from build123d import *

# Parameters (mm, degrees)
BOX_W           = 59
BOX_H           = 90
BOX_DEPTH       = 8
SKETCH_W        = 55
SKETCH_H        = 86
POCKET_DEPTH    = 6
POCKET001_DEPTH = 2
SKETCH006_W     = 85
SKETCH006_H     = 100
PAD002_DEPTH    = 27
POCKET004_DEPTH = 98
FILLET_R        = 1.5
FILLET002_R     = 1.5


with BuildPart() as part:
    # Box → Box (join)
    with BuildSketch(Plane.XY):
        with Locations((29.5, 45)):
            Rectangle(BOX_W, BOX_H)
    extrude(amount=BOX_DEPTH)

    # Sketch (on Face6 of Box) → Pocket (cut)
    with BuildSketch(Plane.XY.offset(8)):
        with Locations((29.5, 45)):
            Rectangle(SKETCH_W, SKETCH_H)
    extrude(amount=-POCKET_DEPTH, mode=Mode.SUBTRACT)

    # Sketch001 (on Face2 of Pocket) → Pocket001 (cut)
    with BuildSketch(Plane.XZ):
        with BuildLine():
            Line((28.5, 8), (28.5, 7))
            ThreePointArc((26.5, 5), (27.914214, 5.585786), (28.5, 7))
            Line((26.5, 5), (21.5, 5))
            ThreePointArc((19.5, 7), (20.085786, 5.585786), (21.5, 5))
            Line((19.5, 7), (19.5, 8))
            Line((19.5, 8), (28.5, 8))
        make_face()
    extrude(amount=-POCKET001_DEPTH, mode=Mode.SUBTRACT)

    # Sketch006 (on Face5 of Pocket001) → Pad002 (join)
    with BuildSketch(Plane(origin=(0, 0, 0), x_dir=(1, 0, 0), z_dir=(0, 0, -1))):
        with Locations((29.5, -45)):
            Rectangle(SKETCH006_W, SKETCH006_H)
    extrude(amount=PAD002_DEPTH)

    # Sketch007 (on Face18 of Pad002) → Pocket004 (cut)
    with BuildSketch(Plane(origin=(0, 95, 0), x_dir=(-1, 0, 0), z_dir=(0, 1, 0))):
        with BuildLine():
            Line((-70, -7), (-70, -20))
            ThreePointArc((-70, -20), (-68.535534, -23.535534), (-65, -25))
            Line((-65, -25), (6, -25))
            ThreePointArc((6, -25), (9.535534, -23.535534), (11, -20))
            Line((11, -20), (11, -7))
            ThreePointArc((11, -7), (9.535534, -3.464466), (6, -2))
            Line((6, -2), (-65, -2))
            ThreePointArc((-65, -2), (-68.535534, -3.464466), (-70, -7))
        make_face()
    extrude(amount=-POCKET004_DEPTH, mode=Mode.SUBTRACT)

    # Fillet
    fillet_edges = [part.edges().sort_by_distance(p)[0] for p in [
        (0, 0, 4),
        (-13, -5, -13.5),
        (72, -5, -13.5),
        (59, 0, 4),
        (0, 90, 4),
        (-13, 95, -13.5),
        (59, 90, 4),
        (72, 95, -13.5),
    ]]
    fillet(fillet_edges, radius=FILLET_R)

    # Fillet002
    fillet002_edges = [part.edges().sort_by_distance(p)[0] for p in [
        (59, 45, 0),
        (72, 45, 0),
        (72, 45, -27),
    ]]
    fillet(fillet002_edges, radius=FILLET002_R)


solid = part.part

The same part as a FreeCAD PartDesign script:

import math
import FreeCAD as App
import Part
import Sketcher
Q = App.Units.Quantity


def edges_at(feature, points):
    """Names of the edges that pass closest to the given points."""
    edges = feature.Shape.Edges
    near = lambda p: min(range(len(edges)), key=lambda i: edges[i].distToShape(Part.Vertex(*p))[0])
    return sorted({f"Edge{near(p) + 1}" for p in points})


def add_polygon(sketch, points):
    """Adds a closed chain of lines whose ends are joined by coincident constraints."""
    first, n = sketch.GeometryCount, len(points)
    for a, b in zip(points, points[1:] + points[:1]):
        sketch.addGeometry(Part.LineSegment(App.Vector(*a, 0), App.Vector(*b, 0)), False)
    for i in range(n):
        sketch.addConstraint(Sketcher.Constraint("Coincident", first + i, 2, first + (i + 1) % n, 1))

doc = App.newDocument("Part")
body = doc.addObject("PartDesign::Body", "Body")

sketch1 = body.newObject("Sketcher::SketchObject", "Sketch")
sketch1.AttachmentSupport = (doc.getObject("XY_Plane"), [""])
sketch1.MapMode = "FlatFace"
add_polygon(sketch1, [(0, 90), (0, 0), (59, 0), (59, 90)])
sketch1.addConstraint(Sketcher.Constraint("Vertical", 0))
sketch1.addConstraint(Sketcher.Constraint("Horizontal", 1))
sketch1.addConstraint(Sketcher.Constraint("Vertical", 2))
sketch1.addConstraint(Sketcher.Constraint("Horizontal", 3))
sketch1.addConstraint(Sketcher.Constraint("Coincident", 0, 2, -1, 1))
sketch1.addConstraint(Sketcher.Constraint("DistanceX", 1, 1, 1, 2, Q("59 mm")))
sketch1.addConstraint(Sketcher.Constraint("DistanceY", 0, 2, 0, 1, Q("90 mm")))
pad1 = body.newObject("PartDesign::Pad", "Pad")
pad1.Profile = sketch1
pad1.Length = 8

sketch2 = body.newObject("Sketcher::SketchObject", "Sketch001")
sketch2.AttachmentSupport = (doc.getObject("XY_Plane"), [""])
sketch2.MapMode = "FlatFace"
sketch2.AttachmentOffset = App.Placement(App.Vector(0, 0, 8), App.Rotation())
add_polygon(sketch2, [(2, 88), (2, 2), (57, 2), (57, 88)])
sketch2.addConstraint(Sketcher.Constraint("Vertical", 0))
sketch2.addConstraint(Sketcher.Constraint("Horizontal", 1))
sketch2.addConstraint(Sketcher.Constraint("Vertical", 2))
sketch2.addConstraint(Sketcher.Constraint("Horizontal", 3))
sketch2.addConstraint(Sketcher.Constraint("DistanceX", 1, 1, 1, 2, Q("55 mm")))
sketch2.addConstraint(Sketcher.Constraint("DistanceY", 0, 2, 0, 1, Q("86 mm")))
sketch2.addConstraint(Sketcher.Constraint("DistanceX", -1, 1, 0, 2, Q("2 mm")))
sketch2.addConstraint(Sketcher.Constraint("DistanceY", -1, 1, 0, 2, Q("2 mm")))
pocket1 = body.newObject("PartDesign::Pocket", "Pocket")
pocket1.Profile = sketch2
pocket1.Length = 6

sketch3 = body.newObject("Sketcher::SketchObject", "Sketch002")
sketch3.AttachmentSupport = (doc.getObject("XZ_Plane"), [""])
sketch3.MapMode = "FlatFace"
sketch3.addGeometry(Part.LineSegment(App.Vector(28.5, 7, 0), App.Vector(28.5, 8, 0)), False)
sketch3.addGeometry(Part.LineSegment(App.Vector(28.5, 8, 0), App.Vector(19.5, 8, 0)), False)
sketch3.addGeometry(Part.LineSegment(App.Vector(19.5, 8, 0), App.Vector(19.5, 7, 0)), False)
sketch3.addGeometry(Part.ArcOfCircle(Part.Circle(App.Vector(21.5, 7, 0), App.Vector(0, 0, 1), 2), math.radians(180), math.radians(270)), False)
sketch3.addGeometry(Part.LineSegment(App.Vector(21.5, 5, 0), App.Vector(26.5, 5, 0)), False)
sketch3.addGeometry(Part.ArcOfCircle(Part.Circle(App.Vector(26.5, 7, 0), App.Vector(0, 0, 1), 2), math.radians(-90), math.radians(0)), False)
sketch3.addConstraint(Sketcher.Constraint("Coincident", 0, 2, 1, 1))
sketch3.addConstraint(Sketcher.Constraint("Coincident", 1, 2, 2, 1))
sketch3.addConstraint(Sketcher.Constraint("Tangent", 2, 2, 3, 1))
sketch3.addConstraint(Sketcher.Constraint("Tangent", 3, 2, 4, 1))
sketch3.addConstraint(Sketcher.Constraint("Tangent", 4, 2, 5, 1))
sketch3.addConstraint(Sketcher.Constraint("Tangent", 5, 2, 0, 1))
sketch3.addConstraint(Sketcher.Constraint("Vertical", 0))
sketch3.addConstraint(Sketcher.Constraint("Horizontal", 1))
sketch3.addConstraint(Sketcher.Constraint("Vertical", 2))
sketch3.addConstraint(Sketcher.Constraint("Horizontal", 4))
sketch3.addConstraint(Sketcher.Constraint("Equal", 3, 5))
sketch3.addConstraint(Sketcher.Constraint("Radius", 3, Q("1.999999 mm")))
sketch3.addConstraint(Sketcher.Constraint("DistanceX", 1, 2, 1, 1, Q("9 mm")))
sketch3.addConstraint(Sketcher.Constraint("DistanceY", 0, 1, 0, 2, Q("1 mm")))
sketch3.addConstraint(Sketcher.Constraint("DistanceY", -1, 1, 3, 3, Q("6.999999 mm")))
sketch3.addConstraint(Sketcher.Constraint("DistanceX", -1, 1, 3, 3, Q("21.499999 mm")))
pocket2 = body.newObject("PartDesign::Pocket", "Pocket001")
pocket2.Profile = sketch3
pocket2.Length = 2

sketch4 = body.newObject("Sketcher::SketchObject", "Sketch003")
sketch4.AttachmentSupport = (doc.getObject("XY_Plane"), [""])
sketch4.MapMode = "FlatFace"
add_polygon(sketch4, [(-13, -5), (-13, 95), (72, 95), (72, -5)])
sketch4.addConstraint(Sketcher.Constraint("Vertical", 0))
sketch4.addConstraint(Sketcher.Constraint("Horizontal", 1))
sketch4.addConstraint(Sketcher.Constraint("Vertical", 2))
sketch4.addConstraint(Sketcher.Constraint("Horizontal", 3))
sketch4.addConstraint(Sketcher.Constraint("DistanceX", 1, 1, 1, 2, Q("85 mm")))
sketch4.addConstraint(Sketcher.Constraint("DistanceY", 0, 1, 0, 2, Q("100 mm")))
sketch4.addConstraint(Sketcher.Constraint("DistanceX", 0, 2, -1, 1, Q("13 mm")))
sketch4.addConstraint(Sketcher.Constraint("DistanceY", -1, 1, 0, 2, Q("95 mm")))
pad2 = body.newObject("PartDesign::Pad", "Pad001")
pad2.Profile = sketch4
pad2.Length = 27
pad2.Reversed = True

sketch5 = body.newObject("Sketcher::SketchObject", "Sketch004")
sketch5.AttachmentSupport = (doc.getObject("XZ_Plane"), [""])
sketch5.MapMode = "FlatFace"
sketch5.AttachmentOffset = App.Placement(App.Vector(0, 0, -95), App.Rotation())
sketch5.addGeometry(Part.LineSegment(App.Vector(70, -7, 0), App.Vector(70, -20, 0)), False)
sketch5.addGeometry(Part.ArcOfCircle(Part.Circle(App.Vector(65, -20, 0), App.Vector(0, 0, 1), 5), math.radians(-90), math.radians(0)), False)
sketch5.addGeometry(Part.LineSegment(App.Vector(65, -25, 0), App.Vector(-6, -25, 0)), False)
sketch5.addGeometry(Part.ArcOfCircle(Part.Circle(App.Vector(-6, -20, 0), App.Vector(0, 0, 1), 5), math.radians(180), math.radians(270)), False)
sketch5.addGeometry(Part.LineSegment(App.Vector(-11, -20, 0), App.Vector(-11, -7, 0)), False)
sketch5.addGeometry(Part.ArcOfCircle(Part.Circle(App.Vector(-6, -7, 0), App.Vector(0, 0, 1), 5), math.radians(90), math.radians(180)), False)
sketch5.addGeometry(Part.LineSegment(App.Vector(-6, -2, 0), App.Vector(65, -2, 0)), False)
sketch5.addGeometry(Part.ArcOfCircle(Part.Circle(App.Vector(65, -7, 0), App.Vector(0, 0, 1), 5), math.radians(0), math.radians(90)), False)
sketch5.addConstraint(Sketcher.Constraint("Tangent", 0, 2, 1, 2))
sketch5.addConstraint(Sketcher.Constraint("Tangent", 1, 1, 2, 1))
sketch5.addConstraint(Sketcher.Constraint("Tangent", 2, 2, 3, 2))
sketch5.addConstraint(Sketcher.Constraint("Tangent", 3, 1, 4, 1))
sketch5.addConstraint(Sketcher.Constraint("Tangent", 4, 2, 5, 2))
sketch5.addConstraint(Sketcher.Constraint("Tangent", 5, 1, 6, 1))
sketch5.addConstraint(Sketcher.Constraint("Tangent", 6, 2, 7, 2))
sketch5.addConstraint(Sketcher.Constraint("Tangent", 7, 1, 0, 1))
sketch5.addConstraint(Sketcher.Constraint("Vertical", 0))
sketch5.addConstraint(Sketcher.Constraint("Horizontal", 2))
sketch5.addConstraint(Sketcher.Constraint("Vertical", 4))
sketch5.addConstraint(Sketcher.Constraint("Horizontal", 6))
sketch5.addConstraint(Sketcher.Constraint("Equal", 1, 3))
sketch5.addConstraint(Sketcher.Constraint("Equal", 3, 5))
sketch5.addConstraint(Sketcher.Constraint("Equal", 5, 7))
sketch5.addConstraint(Sketcher.Constraint("Radius", 1, Q("5 mm")))
sketch5.addConstraint(Sketcher.Constraint("DistanceX", 2, 2, 2, 1, Q("71 mm")))
sketch5.addConstraint(Sketcher.Constraint("DistanceY", 0, 2, 0, 1, Q("13 mm")))
sketch5.addConstraint(Sketcher.Constraint("DistanceX", -1, 1, 1, 3, Q("65 mm")))
sketch5.addConstraint(Sketcher.Constraint("DistanceY", 1, 3, -1, 1, Q("20 mm")))
pocket3 = body.newObject("PartDesign::Pocket", "Pocket002")
pocket3.Profile = sketch5
pocket3.Length = 98
pocket3.Reversed = True
doc.recompute()

fillet = body.newObject("PartDesign::Fillet", "Fillet")
fillet.Base = (pocket3, edges_at(pocket3, [
    (0, 0, 4),
    (-13, -5, -13.5),
    (72, -5, -13.5),
    (59, 0, 4),
    (0, 90, 4),
    (-13, 95, -13.5),
    (59, 90, 4),
    (72, 95, -13.5),
]))
fillet.Radius = 1.5
doc.recompute()

fillet2 = body.newObject("PartDesign::Fillet", "Fillet001")
fillet2.Base = (fillet, edges_at(fillet, [(59, 45, 0), (72, 45, 0), (72, 45, -27)]))
fillet2.Radius = 1.5

doc.recompute()
